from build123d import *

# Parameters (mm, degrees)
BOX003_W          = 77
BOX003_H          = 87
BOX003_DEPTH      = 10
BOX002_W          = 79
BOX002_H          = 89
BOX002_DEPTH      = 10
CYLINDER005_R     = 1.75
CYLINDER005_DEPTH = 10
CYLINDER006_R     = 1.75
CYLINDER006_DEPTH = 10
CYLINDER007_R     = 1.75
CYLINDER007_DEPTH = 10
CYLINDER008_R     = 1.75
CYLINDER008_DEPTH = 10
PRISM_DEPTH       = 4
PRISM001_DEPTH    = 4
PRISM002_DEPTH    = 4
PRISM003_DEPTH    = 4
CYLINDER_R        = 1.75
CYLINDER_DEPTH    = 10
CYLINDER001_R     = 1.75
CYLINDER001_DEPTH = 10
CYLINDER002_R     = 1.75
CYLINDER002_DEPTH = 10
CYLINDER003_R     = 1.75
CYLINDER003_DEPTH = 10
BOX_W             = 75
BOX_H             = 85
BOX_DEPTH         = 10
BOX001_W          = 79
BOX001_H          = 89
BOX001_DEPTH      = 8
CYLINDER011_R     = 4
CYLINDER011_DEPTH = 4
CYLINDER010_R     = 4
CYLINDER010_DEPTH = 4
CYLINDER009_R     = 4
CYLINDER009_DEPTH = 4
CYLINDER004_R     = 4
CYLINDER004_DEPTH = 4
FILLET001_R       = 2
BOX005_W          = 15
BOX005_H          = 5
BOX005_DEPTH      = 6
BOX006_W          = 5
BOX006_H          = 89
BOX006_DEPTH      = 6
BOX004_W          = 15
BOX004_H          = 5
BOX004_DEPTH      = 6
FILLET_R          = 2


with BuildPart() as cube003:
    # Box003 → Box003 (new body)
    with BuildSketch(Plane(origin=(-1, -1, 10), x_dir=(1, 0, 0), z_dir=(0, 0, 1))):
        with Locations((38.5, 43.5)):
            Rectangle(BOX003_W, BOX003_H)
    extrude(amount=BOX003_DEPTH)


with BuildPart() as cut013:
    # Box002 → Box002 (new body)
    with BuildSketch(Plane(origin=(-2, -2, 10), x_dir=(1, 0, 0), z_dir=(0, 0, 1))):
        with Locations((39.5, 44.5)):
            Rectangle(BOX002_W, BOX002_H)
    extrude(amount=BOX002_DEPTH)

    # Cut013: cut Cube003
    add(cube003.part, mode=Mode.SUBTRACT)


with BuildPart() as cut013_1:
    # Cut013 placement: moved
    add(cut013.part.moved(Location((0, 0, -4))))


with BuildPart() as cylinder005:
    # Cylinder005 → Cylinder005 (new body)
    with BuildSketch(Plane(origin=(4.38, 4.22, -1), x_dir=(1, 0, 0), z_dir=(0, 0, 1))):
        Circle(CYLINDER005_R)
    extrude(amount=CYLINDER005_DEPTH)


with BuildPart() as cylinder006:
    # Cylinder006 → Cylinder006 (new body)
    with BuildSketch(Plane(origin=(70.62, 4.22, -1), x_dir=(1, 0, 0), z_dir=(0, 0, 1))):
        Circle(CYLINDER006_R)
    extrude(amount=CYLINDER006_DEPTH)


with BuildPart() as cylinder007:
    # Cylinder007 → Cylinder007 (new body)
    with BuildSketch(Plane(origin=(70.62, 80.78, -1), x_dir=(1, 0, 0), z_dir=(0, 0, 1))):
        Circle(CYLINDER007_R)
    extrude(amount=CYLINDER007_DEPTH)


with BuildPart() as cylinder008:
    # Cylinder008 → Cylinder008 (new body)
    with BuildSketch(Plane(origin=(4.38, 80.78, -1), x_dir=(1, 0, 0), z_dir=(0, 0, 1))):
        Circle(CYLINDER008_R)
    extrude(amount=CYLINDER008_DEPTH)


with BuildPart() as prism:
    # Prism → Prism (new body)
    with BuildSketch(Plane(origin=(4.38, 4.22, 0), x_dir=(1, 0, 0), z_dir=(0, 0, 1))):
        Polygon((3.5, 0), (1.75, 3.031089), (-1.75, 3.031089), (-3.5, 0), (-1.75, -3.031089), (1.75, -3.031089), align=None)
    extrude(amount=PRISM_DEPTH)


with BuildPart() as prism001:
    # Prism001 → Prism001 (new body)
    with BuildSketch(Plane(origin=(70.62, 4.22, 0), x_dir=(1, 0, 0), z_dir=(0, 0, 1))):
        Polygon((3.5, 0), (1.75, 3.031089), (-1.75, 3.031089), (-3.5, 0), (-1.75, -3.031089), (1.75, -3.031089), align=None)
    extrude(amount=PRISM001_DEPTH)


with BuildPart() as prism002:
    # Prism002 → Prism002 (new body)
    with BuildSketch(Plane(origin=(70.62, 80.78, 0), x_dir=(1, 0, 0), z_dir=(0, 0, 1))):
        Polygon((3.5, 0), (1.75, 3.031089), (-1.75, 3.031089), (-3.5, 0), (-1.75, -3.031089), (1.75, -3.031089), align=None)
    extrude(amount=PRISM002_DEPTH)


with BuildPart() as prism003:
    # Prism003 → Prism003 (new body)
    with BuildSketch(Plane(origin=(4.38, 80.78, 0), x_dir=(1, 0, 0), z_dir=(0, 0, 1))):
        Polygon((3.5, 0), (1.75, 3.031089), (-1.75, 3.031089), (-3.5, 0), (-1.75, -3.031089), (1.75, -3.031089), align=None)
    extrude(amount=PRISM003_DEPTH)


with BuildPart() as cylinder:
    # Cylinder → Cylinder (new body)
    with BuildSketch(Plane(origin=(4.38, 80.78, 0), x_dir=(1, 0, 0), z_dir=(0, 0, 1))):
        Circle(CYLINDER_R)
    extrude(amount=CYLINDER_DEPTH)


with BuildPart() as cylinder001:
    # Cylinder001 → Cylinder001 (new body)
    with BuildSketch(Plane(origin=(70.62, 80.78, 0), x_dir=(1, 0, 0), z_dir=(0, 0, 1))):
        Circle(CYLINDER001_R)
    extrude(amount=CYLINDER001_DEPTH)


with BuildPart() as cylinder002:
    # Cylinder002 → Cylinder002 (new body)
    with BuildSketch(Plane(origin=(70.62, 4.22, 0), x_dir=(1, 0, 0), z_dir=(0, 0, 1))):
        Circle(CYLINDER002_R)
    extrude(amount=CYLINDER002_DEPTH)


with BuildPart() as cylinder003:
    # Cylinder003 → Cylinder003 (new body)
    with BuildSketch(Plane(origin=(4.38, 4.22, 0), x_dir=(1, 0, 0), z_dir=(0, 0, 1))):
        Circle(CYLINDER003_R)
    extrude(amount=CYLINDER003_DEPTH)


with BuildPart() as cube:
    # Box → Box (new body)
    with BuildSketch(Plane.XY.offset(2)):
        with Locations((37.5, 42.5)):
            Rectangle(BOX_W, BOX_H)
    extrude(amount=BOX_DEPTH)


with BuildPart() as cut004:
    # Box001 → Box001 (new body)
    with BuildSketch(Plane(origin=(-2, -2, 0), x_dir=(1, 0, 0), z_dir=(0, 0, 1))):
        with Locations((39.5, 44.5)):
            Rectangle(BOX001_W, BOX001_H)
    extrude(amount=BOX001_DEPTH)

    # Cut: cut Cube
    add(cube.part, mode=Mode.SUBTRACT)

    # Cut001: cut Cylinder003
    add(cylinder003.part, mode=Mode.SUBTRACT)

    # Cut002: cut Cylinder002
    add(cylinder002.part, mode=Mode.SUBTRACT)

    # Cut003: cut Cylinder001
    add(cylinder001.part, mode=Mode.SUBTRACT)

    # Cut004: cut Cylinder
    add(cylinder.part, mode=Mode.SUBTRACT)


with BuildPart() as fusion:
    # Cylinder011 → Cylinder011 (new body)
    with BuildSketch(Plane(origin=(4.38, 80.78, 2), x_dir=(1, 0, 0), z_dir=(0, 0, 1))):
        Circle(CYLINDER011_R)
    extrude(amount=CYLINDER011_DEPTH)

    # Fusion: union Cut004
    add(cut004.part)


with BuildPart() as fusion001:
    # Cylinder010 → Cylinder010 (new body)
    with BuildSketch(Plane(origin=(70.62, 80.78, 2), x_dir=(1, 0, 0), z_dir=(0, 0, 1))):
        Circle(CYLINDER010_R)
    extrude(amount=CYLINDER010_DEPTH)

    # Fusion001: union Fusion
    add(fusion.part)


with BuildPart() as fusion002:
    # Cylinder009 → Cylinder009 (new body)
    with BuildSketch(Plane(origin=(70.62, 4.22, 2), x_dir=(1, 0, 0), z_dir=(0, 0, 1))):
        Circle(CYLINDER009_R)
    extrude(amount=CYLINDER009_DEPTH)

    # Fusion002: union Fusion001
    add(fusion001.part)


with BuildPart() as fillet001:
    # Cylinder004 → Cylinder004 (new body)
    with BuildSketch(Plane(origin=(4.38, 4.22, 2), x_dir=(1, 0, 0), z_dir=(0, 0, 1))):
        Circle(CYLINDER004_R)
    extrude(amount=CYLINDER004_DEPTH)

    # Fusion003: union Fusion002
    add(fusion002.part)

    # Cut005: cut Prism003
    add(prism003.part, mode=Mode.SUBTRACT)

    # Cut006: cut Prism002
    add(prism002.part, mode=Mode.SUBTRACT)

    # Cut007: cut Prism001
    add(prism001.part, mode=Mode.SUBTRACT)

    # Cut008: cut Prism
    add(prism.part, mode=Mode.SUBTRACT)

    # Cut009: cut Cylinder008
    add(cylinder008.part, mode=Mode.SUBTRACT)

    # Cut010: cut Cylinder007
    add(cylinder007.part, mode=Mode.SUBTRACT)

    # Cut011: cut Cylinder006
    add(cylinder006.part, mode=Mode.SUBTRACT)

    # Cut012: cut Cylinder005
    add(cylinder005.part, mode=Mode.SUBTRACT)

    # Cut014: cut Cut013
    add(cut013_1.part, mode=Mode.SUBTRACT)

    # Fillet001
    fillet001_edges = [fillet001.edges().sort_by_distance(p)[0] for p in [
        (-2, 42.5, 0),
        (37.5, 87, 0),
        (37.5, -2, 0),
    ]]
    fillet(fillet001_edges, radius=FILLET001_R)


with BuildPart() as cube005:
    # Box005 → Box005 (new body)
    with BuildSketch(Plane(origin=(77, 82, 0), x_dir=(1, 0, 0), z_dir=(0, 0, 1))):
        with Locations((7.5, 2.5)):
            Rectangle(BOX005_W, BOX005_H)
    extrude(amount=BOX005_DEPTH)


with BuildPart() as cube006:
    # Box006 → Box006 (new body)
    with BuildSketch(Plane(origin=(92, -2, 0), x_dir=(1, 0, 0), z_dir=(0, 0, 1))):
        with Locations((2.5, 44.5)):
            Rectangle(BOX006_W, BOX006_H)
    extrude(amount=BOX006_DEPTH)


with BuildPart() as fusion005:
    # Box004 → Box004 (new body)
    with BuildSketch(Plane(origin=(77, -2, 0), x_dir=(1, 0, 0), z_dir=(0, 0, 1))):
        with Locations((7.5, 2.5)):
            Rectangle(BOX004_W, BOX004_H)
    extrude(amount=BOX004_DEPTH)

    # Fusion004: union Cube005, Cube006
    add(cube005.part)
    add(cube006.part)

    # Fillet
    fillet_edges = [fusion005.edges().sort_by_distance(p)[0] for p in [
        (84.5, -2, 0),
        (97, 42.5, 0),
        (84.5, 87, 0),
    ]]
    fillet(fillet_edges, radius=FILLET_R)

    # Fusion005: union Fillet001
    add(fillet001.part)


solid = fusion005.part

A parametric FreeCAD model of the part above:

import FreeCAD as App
import Part
import Sketcher
Q = App.Units.Quantity


def edges_at(feature, points):
    """Names of the edges that pass closest to the given points."""
    edges = feature.Shape.Edges
    near = lambda p: min(range(len(edges)), key=lambda i: edges[i].distToShape(Part.Vertex(*p))[0])
    return sorted({f"Edge{near(p) + 1}" for p in points})


def add_polygon(sketch, points):
    """Adds a closed chain of lines whose ends are joined by coincident constraints."""
    first, n = sketch.GeometryCount, len(points)
    for a, b in zip(points, points[1:] + points[:1]):
        sketch.addGeometry(Part.LineSegment(App.Vector(*a, 0), App.Vector(*b, 0)), False)
    for i in range(n):
        sketch.addConstraint(Sketcher.Constraint("Coincident", first + i, 2, first + (i + 1) % n, 1))

doc = App.newDocument("Part")
body = doc.addObject("PartDesign::Body", "Body")

# Sketch on XY plane
sketch1 = doc.addObject("Sketcher::SketchObject", "Sketch")
body.addObject(sketch1)
sketch1.AttachmentSupport = (doc.XY_Plane, [""])
sketch1.MapMode = "FlatFace"
sketch1.AttachmentOffset = App.Placement(App.Vector(0, 0, 10), App.Rotation())
add_polygon(sketch1, [(-1, 86), (-1, -1), (76, -1), (76, 86)])  # lines 0-3
sketch1.addConstraint([
    Sketcher.Constraint("Vertical", 0),
    Sketcher.Constraint("Horizontal", 1),
    Sketcher.Constraint("Vertical", 2),
    Sketcher.Constraint("Horizontal", 3),
    Sketcher.Constraint("DistanceX", 1, 1, 1, 2, 77.0),
    Sketcher.Constraint("DistanceY", 0, 2, 0, 1, 87.0),
    Sketcher.Constraint("DistanceX", 0, 2, -1, 1, 1.0),
    Sketcher.Constraint("DistanceY", 0, 2, -1, 1, 1.0),
])
pad1 = doc.addObject("PartDesign::Pad", "Pad")
body.addObject(pad1)
pad1.Profile = sketch1
pad1.Length = 10
body2 = doc.addObject("PartDesign::Body", "Body001")

# Sketch on XY plane
sketch2 = doc.addObject("Sketcher::SketchObject", "Sketch001")
body2.addObject(sketch2)
sketch2.AttachmentSupport = (doc.getObject("XY_Plane001"), [""])
sketch2.MapMode = "FlatFace"
sketch2.AttachmentOffset = App.Placement(App.Vector(0, 0, 10), App.Rotation())
add_polygon(sketch2, [(-2, 87), (-2, -2), (77, -2), (77, 87)])  # lines 0-3
sketch2.addConstraint([
    Sketcher.Constraint("Vertical", 0),
    Sketcher.Constraint("Horizontal", 1),
    Sketcher.Constraint("Vertical", 2),
    Sketcher.Constraint("Horizontal", 3),
    Sketcher.Constraint("DistanceX", 1, 1, 1, 2, 79.0),
    Sketcher.Constraint("DistanceY", 0, 2, 0, 1, 89.0),
    Sketcher.Constraint("DistanceX", 0, 2, -1, 1, 2.0),
    Sketcher.Constraint("DistanceY", 0, 2, -1, 1, 2.0),
])
pad2 = doc.addObject("PartDesign::Pad", "Pad001")
body2.addObject(pad2)
pad2.Profile = sketch2
pad2.Length = 10
doc.recompute()

boolean = doc.addObject("PartDesign::Boolean", "Boolean")
body2.addObject(boolean)
boolean.Type = "Cut"
boolean.addObjects([body])
body3 = doc.addObject("PartDesign::Body", "Body002")
doc.recompute()

body2.Placement = App.Placement(App.Vector(0, 0, -4), App.Rotation(App.Vector(0, 0, 1), 0))
boolean2 = doc.addObject("PartDesign::Boolean", "Boolean001")
body3.addObject(boolean2)
boolean2.Type = "Fuse"
boolean2.addObjects([body2])
body4 = doc.addObject("PartDesign::Body", "Body003")

# Sketch on XY plane
sketch3 = doc.addObject("Sketcher::SketchObject", "Sketch002")
body4.addObject(sketch3)
sketch3.AttachmentSupport = (doc.getObject("XY_Plane003"), [""])
sketch3.MapMode = "FlatFace"
sketch3.AttachmentOffset = App.Placement(App.Vector(0, 0, -1), App.Rotation())
sketch3.addGeometry(Part.Circle(App.Vector(4.4, 4.2, 0), App.Vector(0, 0, 1), 1.8), False)
sketch3.addConstraint([
    Sketcher.Constraint("Diameter", 0, 3.5),
    Sketcher.Constraint("DistanceX", -1, 1, 0, 3, 4.38),
    Sketcher.Constraint("DistanceY", -1, 1, 0, 3, 4.22),
])
pad3 = doc.addObject("PartDesign::Pad", "Pad002")
body4.addObject(pad3)
pad3.Profile = sketch3
pad3.Length = 10
body5 = doc.addObject("PartDesign::Body", "Body004")

# Sketch on XY plane
sketch4 = doc.addObject("Sketcher::SketchObject", "Sketch003")
body5.addObject(sketch4)
sketch4.AttachmentSupport = (doc.getObject("XY_Plane004"), [""])
sketch4.MapMode = "FlatFace"
sketch4.AttachmentOffset = App.Placement(App.Vector(0, 0, -1), App.Rotation())
sketch4.addGeometry(Part.Circle(App.Vector(70.6, 4.2, 0), App.Vector(0, 0, 1), 1.8), False)
sketch4.addConstraint([
    Sketcher.Constraint("Diameter", 0, 3.5),
    Sketcher.Constraint("DistanceX", -1, 1, 0, 3, 70.62),
    Sketcher.Constraint("DistanceY", -1, 1, 0, 3, 4.22),
])
pad4 = doc.addObject("PartDesign::Pad", "Pad003")
body5.addObject(pad4)
pad4.Profile = sketch4
pad4.Length = 10
body6 = doc.addObject("PartDesign::Body", "Body005")

# Sketch on XY plane
sketch5 = doc.addObject("Sketcher::SketchObject", "Sketch004")
body6.addObject(sketch5)
sketch5.AttachmentSupport = (doc.getObject("XY_Plane005"), [""])
sketch5.MapMode = "FlatFace"
sketch5.AttachmentOffset = App.Placement(App.Vector(0, 0, -1), App.Rotation())
sketch5.addGeometry(Part.Circle(App.Vector(70.6, 80.8, 0), App.Vector(0, 0, 1), 1.8), False)
sketch5.addConstraint([
    Sketcher.Constraint("Diameter", 0, 3.5),
    Sketcher.Constraint("DistanceX", -1, 1, 0, 3, 70.62),
    Sketcher.Constraint("DistanceY", -1, 1, 0, 3, 80.78),
])
pad5 = doc.addObject("PartDesign::Pad", "Pad004")
body6.addObject(pad5)
pad5.Profile = sketch5
pad5.Length = 10
body7 = doc.addObject("PartDesign::Body", "Body006")

# Sketch on XY plane
sketch6 = doc.addObject("Sketcher::SketchObject", "Sketch005")
body7.addObject(sketch6)
sketch6.AttachmentSupport = (doc.getObject("XY_Plane006"), [""])
sketch6.MapMode = "FlatFace"
sketch6.AttachmentOffset = App.Placement(App.Vector(0, 0, -1), App.Rotation())
sketch6.addGeometry(Part.Circle(App.Vector(4.4, 80.8, 0), App.Vector(0, 0, 1), 1.8), False)
sketch6.addConstraint([
    Sketcher.Constraint("Diameter", 0, 3.5),
    Sketcher.Constraint("DistanceX", -1, 1, 0, 3, 4.38),
    Sketcher.Constraint("DistanceY", -1, 1, 0, 3, 80.78),
])
pad6 = doc.addObject("PartDesign::Pad", "Pad005")
body7.addObject(pad6)
pad6.Profile = sketch6
pad6.Length = 10
body8 = doc.addObject("PartDesign::Body", "Body007")

# Sketch on XY plane
sketch7 = doc.addObject("Sketcher::SketchObject", "Sketch006")
body8.addObject(sketch7)
sketch7.AttachmentSupport = (doc.getObject("XY_Plane007"), [""])
sketch7.MapMode = "FlatFace"
add_polygon(sketch7, [(7.9, 4.2), (6.1, 7.3), (2.6, 7.3), (0.9, 4.2), (2.6, 1.2), (6.1, 1.2)])  # lines 0-5
sketch7.addConstraint([
    Sketcher.Constraint("Horizontal", 1),
    Sketcher.Constraint("Horizontal", 4),
    Sketcher.Constraint("Parallel", 0, 3),
    Sketcher.Constraint("Parallel", 2, 5),
    Sketcher.Constraint("Horizontal", 2, 2, 5, 2),
    Sketcher.Constraint("Vertical", 1, 2, 3, 2),
    Sketcher.Constraint("Vertical", 0, 2, 4, 2),
    Sketcher.Constraint("Angle", 0, Q("119.999999 deg")),
    Sketcher.Constraint("DistanceX", 1, 2, 1, 1, 3.5),
    Sketcher.Constraint("DistanceX", 2, 2, 5, 2, 7.0),
    Sketcher.Constraint("DistanceX", -1, 1, 0, 2, 6.13),
    Sketcher.Constraint("DistanceY", -1, 1, 2, 2, 4.22),
])
pad7 = doc.addObject("PartDesign::Pad", "Pad006")
body8.addObject(pad7)
pad7.Profile = sketch7
pad7.Length = 4
body9 = doc.addObject("PartDesign::Body", "Body008")

# Sketch on XY plane
sketch8 = doc.addObject("Sketcher::SketchObject", "Sketch007")
body9.addObject(sketch8)
sketch8.AttachmentSupport = (doc.getObject("XY_Plane008"), [""])
sketch8.MapMode = "FlatFace"
add_polygon(sketch8, [(74.1, 4.2), (72.4, 7.3), (68.9, 7.3), (67.1, 4.2), (68.9, 1.2), (72.4, 1.2)])  # lines 0-5
sketch8.addConstraint([
    Sketcher.Constraint("Horizontal", 1),
    Sketcher.Constraint("Horizontal", 4),
    Sketcher.Constraint("Parallel", 0, 3),
    Sketcher.Constraint("Parallel", 2, 5),
    Sketcher.Constraint("Horizontal", 2, 2, 5, 2),
    Sketcher.Constraint("Vertical", 1, 2, 3, 2),
    Sketcher.Constraint("Vertical", 0, 2, 4, 2),
    Sketcher.Constraint("Angle", 0, Q("119.999999 deg")),
    Sketcher.Constraint("DistanceX", 1, 2, 1, 1, 3.5),
    Sketcher.Constraint("DistanceX", 2, 2, 5, 2, 7.0),
    Sketcher.Constraint("DistanceX", -1, 1, 0, 2, 72.37),
    Sketcher.Constraint("DistanceY", -1, 1, 2, 2, 4.22),
])
pad8 = doc.addObject("PartDesign::Pad", "Pad007")
body9.addObject(pad8)
pad8.Profile = sketch8
pad8.Length = 4
body10 = doc.addObject("PartDesign::Body", "Body009")

# Sketch on XY plane
sketch9 = doc.addObject("Sketcher::SketchObject", "Sketch008")
body10.addObject(sketch9)
sketch9.AttachmentSupport = (doc.getObject("XY_Plane009"), [""])
sketch9.MapMode = "FlatFace"
add_polygon(sketch9, [(74.1, 80.8), (72.4, 83.8), (68.9, 83.8), (67.1, 80.8), (68.9, 77.7), (72.4, 77.7)])  # lines 0-5
sketch9.addConstraint([
    Sketcher.Constraint("Horizontal", 1),
    Sketcher.Constraint("Horizontal", 4),
    Sketcher.Constraint("Parallel", 0, 3),
    Sketcher.Constraint("Parallel", 2, 5),
    Sketcher.Constraint("Horizontal", 2, 2, 5, 2),
    Sketcher.Constraint("Vertical", 1, 2, 3, 2),
    Sketcher.Constraint("Vertical", 0, 2, 4, 2),
    Sketcher.Constraint("Angle", 0, Q("119.999999 deg")),
    Sketcher.Constraint("DistanceX", 1, 2, 1, 1, 3.5),
    Sketcher.Constraint("DistanceX", 2, 2, 5, 2, 7.0),
    Sketcher.Constraint("DistanceX", -1, 1, 0, 2, 72.37),
    Sketcher.Constraint("DistanceY", -1, 1, 2, 2, 80.78),
])
pad9 = doc.addObject("PartDesign::Pad", "Pad008")
body10.addObject(pad9)
pad9.Profile = sketch9
pad9.Length = 4
body11 = doc.addObject("PartDesign::Body", "Body010")

# Sketch on XY plane
sketch10 = doc.addObject("Sketcher::SketchObject", "Sketch009")
body11.addObject(sketch10)
sketch10.AttachmentSupport = (doc.getObject("XY_Plane010"), [""])
sketch10.MapMode = "FlatFace"
add_polygon(sketch10, [(7.9, 80.8), (6.1, 83.8), (2.6, 83.8), (0.9, 80.8), (2.6, 77.7), (6.1, 77.7)])  # lines 0-5
sketch10.addConstraint([
    Sketcher.Constraint("Horizontal", 1),
    Sketcher.Constraint("Horizontal", 4),
    Sketcher.Constraint("Parallel", 0, 3),
    Sketcher.Constraint("Parallel", 2, 5),
    Sketcher.Constraint("Horizontal", 2, 2, 5, 2),
    Sketcher.Constraint("Vertical", 1, 2, 3, 2),
    Sketcher.Constraint("Vertical", 0, 2, 4, 2),
    Sketcher.Constraint("Angle", 0, Q("119.999999 deg")),
    Sketcher.Constraint("DistanceX", 1, 2, 1, 1, 3.5),
    Sketcher.Constraint("DistanceX", 2, 2, 5, 2, 7.0),
    Sketcher.Constraint("DistanceX", -1, 1, 0, 2, 6.13),
    Sketcher.Constraint("DistanceY", -1, 1, 2, 2, 80.78),
])
pad10 = doc.addObject("PartDesign::Pad", "Pad009")
body11.addObject(pad10)
pad10.Profile = sketch10
pad10.Length = 4
body12 = doc.addObject("PartDesign::Body", "Body011")

# Sketch on XY plane
sketch11 = doc.addObject("Sketcher::SketchObject", "Sketch010")
body12.addObject(sketch11)
sketch11.AttachmentSupport = (doc.getObject("XY_Plane011"), [""])
sketch11.MapMode = "FlatFace"
sketch11.addGeometry(Part.Circle(App.Vector(4.4, 80.8, 0), App.Vector(0, 0, 1), 1.8), False)
sketch11.addConstraint([
    Sketcher.Constraint("Diameter", 0, 3.5),
    Sketcher.Constraint("DistanceX", -1, 1, 0, 3, 4.38),
    Sketcher.Constraint("DistanceY", -1, 1, 0, 3, 80.78),
])
pad11 = doc.addObject("PartDesign::Pad", "Pad010")
body12.addObject(pad11)
pad11.Profile = sketch11
pad11.Length = 10
body13 = doc.addObject("PartDesign::Body", "Body012")

# Sketch on XY plane
sketch12 = doc.addObject("Sketcher::SketchObject", "Sketch011")
body13.addObject(sketch12)
sketch12.AttachmentSupport = (doc.getObject("XY_Plane012"), [""])
sketch12.MapMode = "FlatFace"
sketch12.addGeometry(Part.Circle(App.Vector(70.6, 80.8, 0), App.Vector(0, 0, 1), 1.8), False)
sketch12.addConstraint([
    Sketcher.Constraint("Diameter", 0, 3.5),
    Sketcher.Constraint("DistanceX", -1, 1, 0, 3, 70.62),
    Sketcher.Constraint("DistanceY", -1, 1, 0, 3, 80.78),
])
pad12 = doc.addObject("PartDesign::Pad", "Pad011")
body13.addObject(pad12)
pad12.Profile = sketch12
pad12.Length = 10
body14 = doc.addObject("PartDesign::Body", "Body013")

# Sketch on XY plane
sketch13 = doc.addObject("Sketcher::SketchObject", "Sketch012")
body14.addObject(sketch13)
sketch13.AttachmentSupport = (doc.getObject("XY_Plane013"), [""])
sketch13.MapMode = "FlatFace"
sketch13.addGeometry(Part.Circle(App.Vector(70.6, 4.2, 0), App.Vector(0, 0, 1), 1.8), False)
sketch13.addConstraint([
    Sketcher.Constraint("Diameter", 0, 3.5),
    Sketcher.Constraint("DistanceX", -1, 1, 0, 3, 70.62),
    Sketcher.Constraint("DistanceY", -1, 1, 0, 3, 4.22),
])
pad13 = doc.addObject("PartDesign::Pad", "Pad012")
body14.addObject(pad13)
pad13.Profile = sketch13
pad13.Length = 10
body15 = doc.addObject("PartDesign::Body", "Body014")

# Sketch on XY plane
sketch14 = doc.addObject("Sketcher::SketchObject", "Sketch013")
body15.addObject(sketch14)
sketch14.AttachmentSupport = (doc.getObject("XY_Plane014"), [""])
sketch14.MapMode = "FlatFace"
sketch14.addGeometry(Part.Circle(App.Vector(4.4, 4.2, 0), App.Vector(0, 0, 1), 1.8), False)
sketch14.addConstraint([
    Sketcher.Constraint("Diameter", 0, 3.5),
    Sketcher.Constraint("DistanceX", -1, 1, 0, 3, 4.38),
    Sketcher.Constraint("DistanceY", -1, 1, 0, 3, 4.22),
])
pad14 = doc.addObject("PartDesign::Pad", "Pad013")
body15.addObject(pad14)
pad14.Profile = sketch14
pad14.Length = 10
body16 = doc.addObject("PartDesign::Body", "Body015")

# Sketch on XY plane
sketch15 = doc.addObject("Sketcher::SketchObject", "Sketch014")
body16.addObject(sketch15)
sketch15.AttachmentSupport = (doc.getObject("XY_Plane015"), [""])
sketch15.MapMode = "FlatFace"
sketch15.AttachmentOffset = App.Placement(App.Vector(0, 0, 2), App.Rotation())
add_polygon(sketch15, [(0, 85), (0, 0), (75, 0), (75, 85)])  # lines 0-3
sketch15.addConstraint([
    Sketcher.Constraint("Vertical", 0),
    Sketcher.Constraint("Horizontal", 1),
    Sketcher.Constraint("Vertical", 2),
    Sketcher.Constraint("Horizontal", 3),
    Sketcher.Constraint("Coincident", 0, 2, -1, 1),
    Sketcher.Constraint("DistanceX", 1, 1, 1, 2, 75.0),
    Sketcher.Constraint("DistanceY", 0, 2, 0, 1, 85.0),
])
pad15 = doc.addObject("PartDesign::Pad", "Pad014")
body16.addObject(pad15)
pad15.Profile = sketch15
pad15.Length = 10
body17 = doc.addObject("PartDesign::Body", "Body016")

# Sketch on XY plane
sketch16 = doc.addObject("Sketcher::SketchObject", "Sketch015")
body17.addObject(sketch16)
sketch16.AttachmentSupport = (doc.getObject("XY_Plane016"), [""])
sketch16.MapMode = "FlatFace"
add_polygon(sketch16, [(-2, 87), (-2, -2), (77, -2), (77, 87)])  # lines 0-3
sketch16.addConstraint([
    Sketcher.Constraint("Vertical", 0),
    Sketcher.Constraint("Horizontal", 1),
    Sketcher.Constraint("Vertical", 2),
    Sketcher.Constraint("Horizontal", 3),
    Sketcher.Constraint("DistanceX", 1, 1, 1, 2, 79.0),
    Sketcher.Constraint("DistanceY", 0, 2, 0, 1, 89.0),
    Sketcher.Constraint("DistanceX", 0, 2, -1, 1, 2.0),
    Sketcher.Constraint("DistanceY", 0, 2, -1, 1, 2.0),
])
pad16 = doc.addObject("PartDesign::Pad", "Pad015")
body17.addObject(pad16)
pad16.Profile = sketch16
pad16.Length = 8
doc.recompute()

boolean3 = doc.addObject("PartDesign::Boolean", "Boolean002")
body17.addObject(boolean3)
boolean3.Type = "Cut"
boolean3.addObjects([body16])
doc.recompute()

boolean4 = doc.addObject("PartDesign::Boolean", "Boolean003")
body17.addObject(boolean4)
boolean4.Type = "Cut"
boolean4.addObjects([body15])
doc.recompute()

boolean5 = doc.addObject("PartDesign::Boolean", "Boolean004")
body17.addObject(boolean5)
boolean5.Type = "Cut"
boolean5.addObjects([body14])
doc.recompute()

boolean6 = doc.addObject("PartDesign::Boolean", "Boolean005")
body17.addObject(boolean6)
boolean6.Type = "Cut"
boolean6.addObjects([body13])
doc.recompute()

boolean7 = doc.addObject("PartDesign::Boolean", "Boolean006")
body17.addObject(boolean7)
boolean7.Type = "Cut"
boolean7.addObjects([body12])
body18 = doc.addObject("PartDesign::Body", "Body017")

# Sketch on XY plane
sketch17 = doc.addObject("Sketcher::SketchObject", "Sketch016")
body18.addObject(sketch17)
sketch17.AttachmentSupport = (doc.getObject("XY_Plane017"), [""])
sketch17.MapMode = "FlatFace"
sketch17.AttachmentOffset = App.Placement(App.Vector(0, 0, 2), App.Rotation())
sketch17.addGeometry(Part.Circle(App.Vector(4.4, 80.8, 0), App.Vector(0, 0, 1), 4), False)
sketch17.addConstraint([
    Sketcher.Constraint("Diameter", 0, 8.0),
    Sketcher.Constraint("DistanceX", -1, 1, 0, 3, 4.38),
    Sketcher.Constraint("DistanceY", -1, 1, 0, 3, 80.78),
])
pad17 = doc.addObject("PartDesign::Pad", "Pad016")
body18.addObject(pad17)
pad17.Profile = sketch17
pad17.Length = 4
doc.recompute()

boolean8 = doc.addObject("PartDesign::Boolean", "Boolean007")
body18.addObject(boolean8)
boolean8.Type = "Fuse"
boolean8.addObjects([body17])
body19 = doc.addObject("PartDesign::Body", "Body018")

# Sketch on XY plane
sketch18 = doc.addObject("Sketcher::SketchObject", "Sketch017")
body19.addObject(sketch18)
sketch18.AttachmentSupport = (doc.getObject("XY_Plane018"), [""])
sketch18.MapMode = "FlatFace"
sketch18.AttachmentOffset = App.Placement(App.Vector(0, 0, 2), App.Rotation())
sketch18.addGeometry(Part.Circle(App.Vector(70.6, 80.8, 0), App.Vector(0, 0, 1), 4), False)
sketch18.addConstraint([
    Sketcher.Constraint("Diameter", 0, 8.0),
    Sketcher.Constraint("DistanceX", -1, 1, 0, 3, 70.62),
    Sketcher.Constraint("DistanceY", -1, 1, 0, 3, 80.78),
])
pad18 = doc.addObject("PartDesign::Pad", "Pad017")
body19.addObject(pad18)
pad18.Profile = sketch18
pad18.Length = 4
doc.recompute()

boolean9 = doc.addObject("PartDesign::Boolean", "Boolean008")
body19.addObject(boolean9)
boolean9.Type = "Fuse"
boolean9.addObjects([body18])
body20 = doc.addObject("PartDesign::Body", "Body019")

# Sketch on XY plane
sketch19 = doc.addObject("Sketcher::SketchObject", "Sketch018")
body20.addObject(sketch19)
sketch19.AttachmentSupport = (doc.getObject("XY_Plane019"), [""])
sketch19.MapMode = "FlatFace"
sketch19.AttachmentOffset = App.Placement(App.Vector(0, 0, 2), App.Rotation())
sketch19.addGeometry(Part.Circle(App.Vector(70.6, 4.2, 0), App.Vector(0, 0, 1), 4), False)
sketch19.addConstraint([
    Sketcher.Constraint("Diameter", 0, 8.0),
    Sketcher.Constraint("DistanceX", -1, 1, 0, 3, 70.62),
    Sketcher.Constraint("DistanceY", -1, 1, 0, 3, 4.22),
])
pad19 = doc.addObject("PartDesign::Pad", "Pad018")
body20.addObject(pad19)
pad19.Profile = sketch19
pad19.Length = 4
doc.recompute()

boolean10 = doc.addObject("PartDesign::Boolean", "Boolean009")
body20.addObject(boolean10)
boolean10.Type = "Fuse"
boolean10.addObjects([body19])
body21 = doc.addObject("PartDesign::Body", "Body020")

# Sketch on XY plane
sketch20 = doc.addObject("Sketcher::SketchObject", "Sketch019")
body21.addObject(sketch20)
sketch20.AttachmentSupport = (doc.getObject("XY_Plane020"), [""])
sketch20.MapMode = "FlatFace"
sketch20.AttachmentOffset = App.Placement(App.Vector(0, 0, 2), App.Rotation())
sketch20.addGeometry(Part.Circle(App.Vector(4.4, 4.2, 0), App.Vector(0, 0, 1), 4), False)
sketch20.addConstraint([
    Sketcher.Constraint("Diameter", 0, 8.0),
    Sketcher.Constraint("DistanceX", -1, 1, 0, 3, 4.38),
    Sketcher.Constraint("DistanceY", -1, 1, 0, 3, 4.22),
])
pad20 = doc.addObject("PartDesign::Pad", "Pad019")
body21.addObject(pad20)
pad20.Profile = sketch20
pad20.Length = 4
doc.recompute()

boolean11 = doc.addObject("PartDesign::Boolean", "Boolean010")
body21.addObject(boolean11)
boolean11.Type = "Fuse"
boolean11.addObjects([body20])
doc.recompute()

boolean12 = doc.addObject("PartDesign::Boolean", "Boolean011")
body21.addObject(boolean12)
boolean12.Type = "Cut"
boolean12.addObjects([body11])
doc.recompute()

boolean13 = doc.addObject("PartDesign::Boolean", "Boolean012")
body21.addObject(boolean13)
boolean13.Type = "Cut"
boolean13.addObjects([body10])
doc.recompute()

boolean14 = doc.addObject("PartDesign::Boolean", "Boolean013")
body21.addObject(boolean14)
boolean14.Type = "Cut"
boolean14.addObjects([body9])
doc.recompute()

boolean15 = doc.addObject("PartDesign::Boolean", "Boolean014")
body21.addObject(boolean15)
boolean15.Type = "Cut"
boolean15.addObjects([body8])
doc.recompute()

boolean16 = doc.addObject("PartDesign::Boolean", "Boolean015")
body21.addObject(boolean16)
boolean16.Type = "Cut"
boolean16.addObjects([body7])
doc.recompute()

boolean17 = doc.addObject("PartDesign::Boolean", "Boolean016")
body21.addObject(boolean17)
boolean17.Type = "Cut"
boolean17.addObjects([body6])
doc.recompute()

boolean18 = doc.addObject("PartDesign::Boolean", "Boolean017")
body21.addObject(boolean18)
boolean18.Type = "Cut"
boolean18.addObjects([body5])
doc.recompute()

boolean19 = doc.addObject("PartDesign::Boolean", "Boolean018")
body21.addObject(boolean19)
boolean19.Type = "Cut"
boolean19.addObjects([body4])
doc.recompute()

boolean20 = doc.addObject("PartDesign::Boolean", "Boolean019")
body21.addObject(boolean20)
boolean20.Type = "Cut"
boolean20.addObjects([body3])
doc.recompute()

fillet = doc.addObject("PartDesign::Fillet", "Fillet")
body21.addObject(fillet)
fillet.Base = (boolean20, edges_at(boolean20, [(-2, 42.5, 0), (37.5, 87, 0), (37.5, -2, 0)]))
fillet.Radius = 2
body22 = doc.addObject("PartDesign::Body", "Body021")

# Sketch on XY plane
sketch21 = doc.addObject("Sketcher::SketchObject", "Sketch020")
body22.addObject(sketch21)
sketch21.AttachmentSupport = (doc.getObject("XY_Plane021"), [""])
sketch21.MapMode = "FlatFace"
add_polygon(sketch21, [(77, 87), (77, 82), (92, 82), (92, 87)])  # lines 0-3
sketch21.addConstraint([
    Sketcher.Constraint("Vertical", 0),
    Sketcher.Constraint("Horizontal", 1),
    Sketcher.Constraint("Vertical", 2),
    Sketcher.Constraint("Horizontal", 3),
    Sketcher.Constraint("DistanceX", 1, 1, 1, 2, 15.0),
    Sketcher.Constraint("DistanceY", 0, 2, 0, 1, 5.0),
    Sketcher.Constraint("DistanceX", -1, 1, 0, 2, 77.0),
    Sketcher.Constraint("DistanceY", -1, 1, 0, 2, 82.0),
])
pad21 = doc.addObject("PartDesign::Pad", "Pad020")
body22.addObject(pad21)
pad21.Profile = sketch21
pad21.Length = 6
body23 = doc.addObject("PartDesign::Body", "Body022")

# Sketch on XY plane
sketch22 = doc.addObject("Sketcher::SketchObject", "Sketch021")
body23.addObject(sketch22)
sketch22.AttachmentSupport = (doc.getObject("XY_Plane022"), [""])
sketch22.MapMode = "FlatFace"
add_polygon(sketch22, [(92, 87), (92, -2), (97, -2), (97, 87)])  # lines 0-3
sketch22.addConstraint([
    Sketcher.Constraint("Vertical", 0),
    Sketcher.Constraint("Horizontal", 1),
    Sketcher.Constraint("Vertical", 2),
    Sketcher.Constraint("Horizontal", 3),
    Sketcher.Constraint("DistanceX", 1, 1, 1, 2, 5.0),
    Sketcher.Constraint("DistanceY", 0, 2, 0, 1, 89.0),
    Sketcher.Constraint("DistanceX", -1, 1, 0, 2, 92.0),
    Sketcher.Constraint("DistanceY", 0, 2, -1, 1, 2.0),
])
pad22 = doc.addObject("PartDesign::Pad", "Pad021")
body23.addObject(pad22)
pad22.Profile = sketch22
pad22.Length = 6
body24 = doc.addObject("PartDesign::Body", "Body023")
body24.AllowCompound = True

# Sketch on XY plane
sketch23 = doc.addObject("Sketcher::SketchObject", "Sketch022")
body24.addObject(sketch23)
sketch23.AttachmentSupport = (doc.getObject("XY_Plane023"), [""])
sketch23.MapMode = "FlatFace"
add_polygon(sketch23, [(77, 3), (77, -2), (92, -2), (92, 3)])  # lines 0-3
sketch23.addConstraint([
    Sketcher.Constraint("Vertical", 0),
    Sketcher.Constraint("Horizontal", 1),
    Sketcher.Constraint("Vertical", 2),
    Sketcher.Constraint("Horizontal", 3),
    Sketcher.Constraint("DistanceX", 1, 1, 1, 2, 15.0),
    Sketcher.Constraint("DistanceY", 0, 2, 0, 1, 5.0),
    Sketcher.Constraint("DistanceX", -1, 1, 0, 2, 77.0),
    Sketcher.Constraint("DistanceY", 0, 2, -1, 1, 2.0),
])
pad23 = doc.addObject("PartDesign::Pad", "Pad022")
body24.addObject(pad23)
pad23.Profile = sketch23
pad23.Length = 6
doc.recompute()

boolean21 = doc.addObject("PartDesign::Boolean", "Boolean020")
body24.addObject(boolean21)
boolean21.Type = "Fuse"
boolean21.addObjects([body22])
doc.recompute()

boolean22 = doc.addObject("PartDesign::Boolean", "Boolean021")
body24.addObject(boolean22)
boolean22.Type = "Fuse"
boolean22.addObjects([body23])
doc.recompute()

fillet2 = doc.addObject("PartDesign::Fillet", "Fillet001")
body24.addObject(fillet2)
fillet2.Base = (boolean22, edges_at(boolean22, [(87, -2, 0), (97, 42.5, 0), (87, 87, 0)]))
fillet2.Radius = 2
doc.recompute()

boolean23 = doc.addObject("PartDesign::Boolean", "Boolean022")
body24.addObject(boolean23)
boolean23.Type = "Fuse"
boolean23.addObjects([body21])

doc.recompute()
